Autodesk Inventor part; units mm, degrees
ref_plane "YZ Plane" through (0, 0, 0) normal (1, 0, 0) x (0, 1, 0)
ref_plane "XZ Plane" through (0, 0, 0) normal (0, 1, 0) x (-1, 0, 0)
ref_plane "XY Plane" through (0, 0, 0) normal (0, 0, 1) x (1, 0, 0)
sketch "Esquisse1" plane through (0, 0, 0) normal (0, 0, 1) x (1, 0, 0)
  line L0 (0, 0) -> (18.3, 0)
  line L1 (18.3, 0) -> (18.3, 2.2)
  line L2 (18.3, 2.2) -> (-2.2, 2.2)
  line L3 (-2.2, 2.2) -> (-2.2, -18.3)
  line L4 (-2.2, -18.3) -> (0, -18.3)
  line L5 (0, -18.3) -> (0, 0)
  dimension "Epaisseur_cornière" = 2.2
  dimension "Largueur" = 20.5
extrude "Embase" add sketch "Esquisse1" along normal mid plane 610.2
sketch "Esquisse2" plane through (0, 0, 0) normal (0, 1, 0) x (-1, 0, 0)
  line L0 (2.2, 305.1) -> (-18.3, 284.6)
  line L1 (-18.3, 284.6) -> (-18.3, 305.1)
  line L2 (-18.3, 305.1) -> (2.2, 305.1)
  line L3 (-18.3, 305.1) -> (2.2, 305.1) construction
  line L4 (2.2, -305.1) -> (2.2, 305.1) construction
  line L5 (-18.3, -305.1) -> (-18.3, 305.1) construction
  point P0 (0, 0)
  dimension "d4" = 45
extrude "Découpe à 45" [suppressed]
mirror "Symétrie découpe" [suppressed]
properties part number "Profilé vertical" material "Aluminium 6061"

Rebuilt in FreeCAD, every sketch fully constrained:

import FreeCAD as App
import Part
import Sketcher
from FreeCAD import Vector

doc = App.newDocument("Part")
params = doc.addObject("Spreadsheet::Sheet", "Params")
for row, (alias, value) in enumerate([
    ("sketch1_width", "20.5 mm"),
    ("sketch1_width2", "2.2 mm"),
    ("pad1_length", "610.2 mm"),
], start=1):
    params.set(f"A{row}", alias)
    params.set(f"B{row}", "=" + value)
    params.setAlias(f"B{row}", alias)

body = doc.addObject("PartDesign::Body", "Body")

# Sketch on XY plane
sketch1 = doc.addObject("Sketcher::SketchObject", "Sketch")
body.addObject(sketch1)
sketch1.AttachmentSupport = (doc.XY_Plane, [""])
sketch1.MapMode = "FlatFace"
sketch1.addGeometry([
    Part.LineSegment(Vector(0, -18.3, 0), Vector(0, 0, 0)),  # 0
    Part.LineSegment(Vector(0, 0, 0), Vector(18.3, 0, 0)),  # 1
    Part.LineSegment(Vector(18.3, 0, 0), Vector(18.3, 2.2, 0)),  # 2
    Part.LineSegment(Vector(18.3, 2.2, 0), Vector(-2.2, 2.2, 0)),  # 3
    Part.LineSegment(Vector(-2.2, 2.2, 0), Vector(-2.2, -18.3, 0)),  # 4
    Part.LineSegment(Vector(-2.2, -18.3, 0), Vector(0, -18.3, 0)),  # 5
], False)
sketch1.addConstraint([
    Sketcher.Constraint("Coincident", 0, 2, 1, 1),
    Sketcher.Constraint("Coincident", 1, 2, 2, 1),
    Sketcher.Constraint("Coincident", 2, 2, 3, 1),
    Sketcher.Constraint("Coincident", 3, 2, 4, 1),
    Sketcher.Constraint("Coincident", 4, 2, 5, 1),
    Sketcher.Constraint("Coincident", 5, 2, 0, 1),
    Sketcher.Constraint("Vertical", 0),
    Sketcher.Constraint("Horizontal", 1),
    Sketcher.Constraint("Vertical", 2),
    Sketcher.Constraint("Horizontal", 3),
    Sketcher.Constraint("Vertical", 4),
    Sketcher.Constraint("Horizontal", 5),
    Sketcher.Constraint("Coincident", 0, 2, -1, 1),
    Sketcher.Constraint("Equal", 1, 0),
    Sketcher.Constraint("Equal", 5, 2),
    Sketcher.Constraint("DistanceX", 3, 2, 3, 1, 20.5),
    Sketcher.Constraint("DistanceX", 5, 1, 5, 2, 2.2),
])
sketch1.setExpression("Constraints[15]", "Params.sketch1_width")
sketch1.setExpression("Constraints[16]", "Params.sketch1_width2")
pad1 = doc.addObject("PartDesign::Pad", "Pad")
body.addObject(pad1)
pad1.Profile = sketch1
pad1.setExpression("Length", "Params.pad1_length")
pad1.Midplane = True

doc.recompute()
